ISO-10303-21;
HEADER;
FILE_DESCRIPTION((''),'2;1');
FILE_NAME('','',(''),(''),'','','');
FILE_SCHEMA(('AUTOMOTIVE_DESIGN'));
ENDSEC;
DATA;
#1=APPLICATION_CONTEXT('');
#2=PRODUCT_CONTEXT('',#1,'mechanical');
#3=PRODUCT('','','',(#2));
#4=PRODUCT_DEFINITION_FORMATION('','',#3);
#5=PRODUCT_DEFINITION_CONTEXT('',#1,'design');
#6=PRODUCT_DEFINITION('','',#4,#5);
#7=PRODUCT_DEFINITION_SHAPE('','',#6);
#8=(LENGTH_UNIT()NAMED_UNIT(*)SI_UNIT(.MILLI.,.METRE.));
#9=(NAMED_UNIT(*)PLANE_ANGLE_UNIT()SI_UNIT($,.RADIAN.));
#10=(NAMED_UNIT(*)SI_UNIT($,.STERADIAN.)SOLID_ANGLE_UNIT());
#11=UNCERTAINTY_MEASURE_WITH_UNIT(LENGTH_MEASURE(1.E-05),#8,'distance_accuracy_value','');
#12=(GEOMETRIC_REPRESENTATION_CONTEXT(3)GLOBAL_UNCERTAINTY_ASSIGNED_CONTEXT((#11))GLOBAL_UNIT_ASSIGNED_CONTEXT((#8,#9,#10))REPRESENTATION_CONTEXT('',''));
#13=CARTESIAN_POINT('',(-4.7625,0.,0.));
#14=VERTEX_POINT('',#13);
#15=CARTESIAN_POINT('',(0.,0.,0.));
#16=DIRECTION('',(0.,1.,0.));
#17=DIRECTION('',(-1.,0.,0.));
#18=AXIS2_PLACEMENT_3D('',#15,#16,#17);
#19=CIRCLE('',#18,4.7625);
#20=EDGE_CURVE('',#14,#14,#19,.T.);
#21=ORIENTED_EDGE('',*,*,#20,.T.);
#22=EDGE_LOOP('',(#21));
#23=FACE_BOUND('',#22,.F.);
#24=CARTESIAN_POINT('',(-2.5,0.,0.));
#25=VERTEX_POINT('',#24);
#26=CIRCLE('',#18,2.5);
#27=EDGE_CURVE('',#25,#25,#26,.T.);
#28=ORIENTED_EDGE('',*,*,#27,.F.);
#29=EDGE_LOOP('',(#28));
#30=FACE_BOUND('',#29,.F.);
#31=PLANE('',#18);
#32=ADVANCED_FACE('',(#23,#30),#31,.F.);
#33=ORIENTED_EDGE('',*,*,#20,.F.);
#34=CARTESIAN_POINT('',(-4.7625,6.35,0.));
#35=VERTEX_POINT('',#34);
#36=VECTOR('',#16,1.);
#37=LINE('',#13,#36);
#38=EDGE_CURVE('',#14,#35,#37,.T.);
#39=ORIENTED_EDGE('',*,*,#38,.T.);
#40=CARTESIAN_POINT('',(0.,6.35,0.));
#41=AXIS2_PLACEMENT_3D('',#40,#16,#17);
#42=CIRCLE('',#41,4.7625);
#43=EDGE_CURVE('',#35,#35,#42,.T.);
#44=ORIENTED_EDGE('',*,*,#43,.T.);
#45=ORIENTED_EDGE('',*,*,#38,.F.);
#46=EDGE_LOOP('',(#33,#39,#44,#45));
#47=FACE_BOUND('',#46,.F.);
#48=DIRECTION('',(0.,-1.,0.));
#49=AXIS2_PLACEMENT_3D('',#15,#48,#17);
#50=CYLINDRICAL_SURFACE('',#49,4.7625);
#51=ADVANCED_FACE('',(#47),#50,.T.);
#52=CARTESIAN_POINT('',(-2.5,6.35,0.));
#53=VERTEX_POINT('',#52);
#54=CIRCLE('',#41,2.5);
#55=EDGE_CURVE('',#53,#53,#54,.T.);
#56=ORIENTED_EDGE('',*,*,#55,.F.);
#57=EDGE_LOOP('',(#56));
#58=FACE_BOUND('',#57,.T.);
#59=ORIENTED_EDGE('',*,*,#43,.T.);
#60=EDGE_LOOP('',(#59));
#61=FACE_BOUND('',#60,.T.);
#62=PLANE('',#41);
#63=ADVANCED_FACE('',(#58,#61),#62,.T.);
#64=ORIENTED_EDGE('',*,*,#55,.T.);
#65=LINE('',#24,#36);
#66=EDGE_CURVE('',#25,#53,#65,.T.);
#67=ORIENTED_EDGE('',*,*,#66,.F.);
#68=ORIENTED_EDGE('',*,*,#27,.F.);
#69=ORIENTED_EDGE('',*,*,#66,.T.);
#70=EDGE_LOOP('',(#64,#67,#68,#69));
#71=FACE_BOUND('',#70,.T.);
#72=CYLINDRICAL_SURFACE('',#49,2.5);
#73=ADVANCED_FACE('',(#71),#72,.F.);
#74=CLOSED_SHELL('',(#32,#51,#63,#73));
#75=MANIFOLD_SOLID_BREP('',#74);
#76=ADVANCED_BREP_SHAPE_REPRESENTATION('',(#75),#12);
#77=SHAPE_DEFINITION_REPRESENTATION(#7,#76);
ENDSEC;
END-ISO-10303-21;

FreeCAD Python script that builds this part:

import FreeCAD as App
import Part
import Sketcher

V = App.Vector
Q = App.Units.Quantity

doc = App.newDocument("Part")
body = doc.addObject("PartDesign::Body", "Body")

# Sketch on XZ plane
sketch1 = body.newObject("Sketcher::SketchObject", "Sketch")
sketch1.AttachmentSupport = (doc.getObject("XZ_Plane"), [""])
sketch1.MapMode = "FlatFace"
sketch1.addGeometry(Part.Circle(V(0, 0, 0), V(0, 0, 1), 4.8), False)
sketch1.addGeometry(Part.Circle(V(0, 0, 0), V(0, 0, 1), 2.5), False)
sketch1.addConstraint(Sketcher.Constraint("Coincident", 0, 3, -1, 1))
sketch1.addConstraint(Sketcher.Constraint("Coincident", 1, 3, -1, 1))
sketch1.addConstraint(Sketcher.Constraint("Diameter", 0, Q("0.375 in")))
sketch1.addConstraint(Sketcher.Constraint("Diameter", 1, 5.0))
pad1 = body.newObject("PartDesign::Pad", "Pad")
pad1.Profile = sketch1
pad1.Length = Q("0.25 in")
pad1.Reversed = True

doc.recompute()
